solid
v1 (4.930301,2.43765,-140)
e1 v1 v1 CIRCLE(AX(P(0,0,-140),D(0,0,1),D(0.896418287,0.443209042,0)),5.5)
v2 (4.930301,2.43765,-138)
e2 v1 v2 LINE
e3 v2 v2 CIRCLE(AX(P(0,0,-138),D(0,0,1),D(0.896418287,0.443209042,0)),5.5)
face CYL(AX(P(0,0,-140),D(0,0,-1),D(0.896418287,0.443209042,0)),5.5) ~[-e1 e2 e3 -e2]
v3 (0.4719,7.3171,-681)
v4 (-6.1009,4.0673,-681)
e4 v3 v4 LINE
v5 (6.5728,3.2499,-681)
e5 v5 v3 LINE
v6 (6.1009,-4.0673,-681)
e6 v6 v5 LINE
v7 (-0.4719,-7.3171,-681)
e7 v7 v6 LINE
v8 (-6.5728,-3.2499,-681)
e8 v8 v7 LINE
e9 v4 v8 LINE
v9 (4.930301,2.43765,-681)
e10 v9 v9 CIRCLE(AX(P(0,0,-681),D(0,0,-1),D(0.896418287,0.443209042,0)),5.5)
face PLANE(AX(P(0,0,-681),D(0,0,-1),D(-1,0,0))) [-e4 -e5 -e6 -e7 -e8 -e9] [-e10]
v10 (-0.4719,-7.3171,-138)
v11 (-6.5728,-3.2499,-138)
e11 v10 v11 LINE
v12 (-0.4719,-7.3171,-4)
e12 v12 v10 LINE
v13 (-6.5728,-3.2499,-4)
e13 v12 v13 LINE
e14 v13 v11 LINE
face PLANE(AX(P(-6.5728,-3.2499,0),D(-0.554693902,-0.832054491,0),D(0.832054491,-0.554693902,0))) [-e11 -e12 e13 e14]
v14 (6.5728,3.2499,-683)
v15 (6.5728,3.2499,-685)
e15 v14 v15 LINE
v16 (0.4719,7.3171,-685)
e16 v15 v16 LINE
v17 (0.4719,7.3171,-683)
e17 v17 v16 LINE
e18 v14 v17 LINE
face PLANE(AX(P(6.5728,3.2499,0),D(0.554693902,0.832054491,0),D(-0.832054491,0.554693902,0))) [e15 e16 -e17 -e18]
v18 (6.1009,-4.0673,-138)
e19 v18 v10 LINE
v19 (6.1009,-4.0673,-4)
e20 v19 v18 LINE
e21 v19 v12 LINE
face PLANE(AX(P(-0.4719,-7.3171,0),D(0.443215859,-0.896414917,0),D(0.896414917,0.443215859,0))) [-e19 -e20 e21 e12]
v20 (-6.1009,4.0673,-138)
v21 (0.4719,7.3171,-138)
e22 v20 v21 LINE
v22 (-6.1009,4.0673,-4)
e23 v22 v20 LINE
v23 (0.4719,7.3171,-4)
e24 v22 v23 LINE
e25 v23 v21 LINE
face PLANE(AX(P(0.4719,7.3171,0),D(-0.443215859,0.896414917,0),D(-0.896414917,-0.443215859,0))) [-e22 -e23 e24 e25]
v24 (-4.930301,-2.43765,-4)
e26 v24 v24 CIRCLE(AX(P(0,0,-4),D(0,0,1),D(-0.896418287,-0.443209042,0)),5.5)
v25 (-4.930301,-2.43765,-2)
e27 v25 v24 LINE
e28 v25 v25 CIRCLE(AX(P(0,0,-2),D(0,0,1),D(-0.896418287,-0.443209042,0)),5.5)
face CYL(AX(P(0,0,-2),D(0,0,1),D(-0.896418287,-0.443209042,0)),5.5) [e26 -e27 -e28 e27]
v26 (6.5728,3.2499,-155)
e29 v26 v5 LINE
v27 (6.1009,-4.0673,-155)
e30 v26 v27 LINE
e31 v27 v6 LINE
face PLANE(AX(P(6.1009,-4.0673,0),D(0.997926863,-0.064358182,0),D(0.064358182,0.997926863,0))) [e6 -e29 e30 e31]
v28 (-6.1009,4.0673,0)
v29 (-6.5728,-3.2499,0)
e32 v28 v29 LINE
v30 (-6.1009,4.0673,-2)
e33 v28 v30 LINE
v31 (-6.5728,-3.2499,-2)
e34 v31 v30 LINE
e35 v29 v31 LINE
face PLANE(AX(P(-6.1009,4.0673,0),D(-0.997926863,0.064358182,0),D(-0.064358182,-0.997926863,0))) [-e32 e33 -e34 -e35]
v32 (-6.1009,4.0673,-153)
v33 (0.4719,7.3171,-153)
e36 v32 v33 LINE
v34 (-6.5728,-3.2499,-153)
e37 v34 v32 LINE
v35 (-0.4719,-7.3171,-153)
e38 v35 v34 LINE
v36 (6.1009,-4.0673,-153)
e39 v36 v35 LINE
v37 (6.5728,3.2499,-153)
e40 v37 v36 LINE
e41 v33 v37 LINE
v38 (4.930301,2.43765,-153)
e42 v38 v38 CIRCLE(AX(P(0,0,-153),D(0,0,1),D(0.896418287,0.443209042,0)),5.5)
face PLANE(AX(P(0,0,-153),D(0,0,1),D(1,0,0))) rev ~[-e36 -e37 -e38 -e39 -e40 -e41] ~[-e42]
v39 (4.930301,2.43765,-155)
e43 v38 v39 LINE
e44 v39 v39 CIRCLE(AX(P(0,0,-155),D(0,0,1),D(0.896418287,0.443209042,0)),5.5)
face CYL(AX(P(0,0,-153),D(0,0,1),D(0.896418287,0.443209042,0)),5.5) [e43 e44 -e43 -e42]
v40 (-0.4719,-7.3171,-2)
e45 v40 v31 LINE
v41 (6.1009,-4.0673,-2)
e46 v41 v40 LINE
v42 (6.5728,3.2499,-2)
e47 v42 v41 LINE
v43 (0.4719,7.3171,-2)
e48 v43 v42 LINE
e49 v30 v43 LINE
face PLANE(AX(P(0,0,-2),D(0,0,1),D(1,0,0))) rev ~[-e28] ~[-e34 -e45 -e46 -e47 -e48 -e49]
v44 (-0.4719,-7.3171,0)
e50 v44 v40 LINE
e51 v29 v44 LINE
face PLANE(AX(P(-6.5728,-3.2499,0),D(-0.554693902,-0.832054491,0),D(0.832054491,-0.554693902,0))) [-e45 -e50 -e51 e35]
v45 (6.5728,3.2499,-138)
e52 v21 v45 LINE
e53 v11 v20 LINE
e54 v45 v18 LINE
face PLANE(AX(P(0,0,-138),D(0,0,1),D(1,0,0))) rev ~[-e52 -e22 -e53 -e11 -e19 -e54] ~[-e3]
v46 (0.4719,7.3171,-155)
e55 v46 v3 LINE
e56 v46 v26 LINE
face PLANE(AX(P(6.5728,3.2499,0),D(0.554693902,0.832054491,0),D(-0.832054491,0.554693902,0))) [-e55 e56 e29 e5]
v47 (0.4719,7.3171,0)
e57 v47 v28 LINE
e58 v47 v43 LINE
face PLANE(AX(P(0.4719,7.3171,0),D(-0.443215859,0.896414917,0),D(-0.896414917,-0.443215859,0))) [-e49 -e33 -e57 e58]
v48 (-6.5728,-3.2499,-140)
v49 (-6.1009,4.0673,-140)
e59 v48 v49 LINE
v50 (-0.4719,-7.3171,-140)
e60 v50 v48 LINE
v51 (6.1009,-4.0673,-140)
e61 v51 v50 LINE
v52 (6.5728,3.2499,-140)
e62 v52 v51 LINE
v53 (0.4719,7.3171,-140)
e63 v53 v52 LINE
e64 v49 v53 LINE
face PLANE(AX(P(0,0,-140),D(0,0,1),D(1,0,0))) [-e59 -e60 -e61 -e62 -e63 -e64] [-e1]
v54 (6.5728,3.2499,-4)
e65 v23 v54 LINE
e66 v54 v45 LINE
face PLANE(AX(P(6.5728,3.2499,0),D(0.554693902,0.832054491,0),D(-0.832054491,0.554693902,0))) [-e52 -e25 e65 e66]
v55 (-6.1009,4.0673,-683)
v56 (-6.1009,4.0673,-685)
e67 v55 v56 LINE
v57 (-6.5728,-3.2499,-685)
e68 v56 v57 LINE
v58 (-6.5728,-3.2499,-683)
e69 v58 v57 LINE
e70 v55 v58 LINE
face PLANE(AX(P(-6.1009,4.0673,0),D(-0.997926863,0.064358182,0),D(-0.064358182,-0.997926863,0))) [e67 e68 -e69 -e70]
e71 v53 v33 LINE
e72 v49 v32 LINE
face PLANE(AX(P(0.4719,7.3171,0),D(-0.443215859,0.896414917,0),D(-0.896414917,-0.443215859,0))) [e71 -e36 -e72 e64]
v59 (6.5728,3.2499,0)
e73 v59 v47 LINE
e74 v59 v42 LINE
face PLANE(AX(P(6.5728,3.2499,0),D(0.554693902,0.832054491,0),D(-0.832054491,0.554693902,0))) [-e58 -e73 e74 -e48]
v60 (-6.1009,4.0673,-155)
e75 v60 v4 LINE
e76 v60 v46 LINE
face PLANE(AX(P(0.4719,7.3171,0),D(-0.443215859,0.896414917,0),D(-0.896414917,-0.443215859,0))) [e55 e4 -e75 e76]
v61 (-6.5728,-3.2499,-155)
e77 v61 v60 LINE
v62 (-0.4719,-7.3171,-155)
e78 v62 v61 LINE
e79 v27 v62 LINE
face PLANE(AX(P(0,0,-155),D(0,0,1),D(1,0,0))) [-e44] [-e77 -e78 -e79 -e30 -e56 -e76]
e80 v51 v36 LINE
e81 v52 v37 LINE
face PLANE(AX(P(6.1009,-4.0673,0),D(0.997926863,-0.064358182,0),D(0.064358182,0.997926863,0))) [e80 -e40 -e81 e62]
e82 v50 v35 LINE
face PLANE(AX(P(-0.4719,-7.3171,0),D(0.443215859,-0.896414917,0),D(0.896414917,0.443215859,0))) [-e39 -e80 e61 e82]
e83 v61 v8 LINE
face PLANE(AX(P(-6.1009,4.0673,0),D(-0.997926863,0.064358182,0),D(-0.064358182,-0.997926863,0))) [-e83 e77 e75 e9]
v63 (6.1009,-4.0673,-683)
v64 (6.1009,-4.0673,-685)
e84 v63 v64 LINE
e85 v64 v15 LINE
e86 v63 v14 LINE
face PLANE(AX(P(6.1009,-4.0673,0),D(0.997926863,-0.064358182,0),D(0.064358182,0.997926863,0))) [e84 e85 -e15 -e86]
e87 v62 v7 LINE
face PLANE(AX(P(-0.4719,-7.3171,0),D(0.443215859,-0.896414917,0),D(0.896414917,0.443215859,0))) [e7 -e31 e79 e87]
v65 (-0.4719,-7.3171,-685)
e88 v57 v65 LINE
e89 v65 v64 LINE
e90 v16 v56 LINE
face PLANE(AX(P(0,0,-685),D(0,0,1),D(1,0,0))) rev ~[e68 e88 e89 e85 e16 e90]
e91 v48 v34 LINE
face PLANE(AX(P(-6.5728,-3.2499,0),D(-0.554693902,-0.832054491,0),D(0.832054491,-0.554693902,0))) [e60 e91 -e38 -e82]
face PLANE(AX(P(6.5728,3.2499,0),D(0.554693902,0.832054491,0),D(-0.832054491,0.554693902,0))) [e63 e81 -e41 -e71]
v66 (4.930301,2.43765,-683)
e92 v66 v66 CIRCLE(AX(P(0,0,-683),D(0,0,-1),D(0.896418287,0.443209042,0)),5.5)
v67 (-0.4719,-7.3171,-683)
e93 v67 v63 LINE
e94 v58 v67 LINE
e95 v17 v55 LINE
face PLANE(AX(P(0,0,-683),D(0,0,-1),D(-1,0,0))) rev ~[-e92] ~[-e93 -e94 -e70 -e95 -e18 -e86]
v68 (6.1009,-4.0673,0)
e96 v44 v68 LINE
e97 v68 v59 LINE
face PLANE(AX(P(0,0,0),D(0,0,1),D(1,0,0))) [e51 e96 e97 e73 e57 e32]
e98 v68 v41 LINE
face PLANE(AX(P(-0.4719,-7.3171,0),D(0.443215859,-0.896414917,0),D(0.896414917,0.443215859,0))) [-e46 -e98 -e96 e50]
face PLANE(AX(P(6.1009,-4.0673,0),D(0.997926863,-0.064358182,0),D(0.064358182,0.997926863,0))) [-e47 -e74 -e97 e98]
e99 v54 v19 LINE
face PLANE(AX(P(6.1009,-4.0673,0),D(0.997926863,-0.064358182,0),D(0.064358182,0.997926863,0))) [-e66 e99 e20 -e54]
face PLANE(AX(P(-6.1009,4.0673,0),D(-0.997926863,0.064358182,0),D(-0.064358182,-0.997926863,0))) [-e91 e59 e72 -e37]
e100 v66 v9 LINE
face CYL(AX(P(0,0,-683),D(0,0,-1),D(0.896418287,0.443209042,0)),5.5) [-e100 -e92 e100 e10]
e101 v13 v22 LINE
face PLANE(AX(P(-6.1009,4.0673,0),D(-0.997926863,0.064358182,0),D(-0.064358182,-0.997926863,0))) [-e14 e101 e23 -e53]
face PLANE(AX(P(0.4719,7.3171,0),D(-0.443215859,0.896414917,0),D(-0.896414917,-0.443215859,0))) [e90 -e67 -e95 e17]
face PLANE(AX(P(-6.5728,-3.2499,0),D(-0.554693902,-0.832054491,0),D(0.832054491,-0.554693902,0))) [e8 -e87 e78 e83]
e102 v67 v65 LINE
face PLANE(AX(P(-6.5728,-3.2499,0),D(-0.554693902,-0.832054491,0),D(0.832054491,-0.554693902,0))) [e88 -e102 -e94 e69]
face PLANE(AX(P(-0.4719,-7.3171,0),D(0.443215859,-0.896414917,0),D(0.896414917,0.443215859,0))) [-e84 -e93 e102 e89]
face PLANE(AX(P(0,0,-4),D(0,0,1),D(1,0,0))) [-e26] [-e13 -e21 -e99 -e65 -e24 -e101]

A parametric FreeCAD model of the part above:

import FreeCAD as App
import Part
import Sketcher
Q = App.Units.Quantity

doc = App.newDocument("Part")
body = doc.addObject("PartDesign::Body", "Body")

sketch1 = body.newObject("Sketcher::SketchObject", "Sketch")
sketch1.AttachmentSupport = (doc.getObject("XY_Plane"), [""])
sketch1.MapMode = "FlatFace"
sketch1.addGeometry(Part.LineSegment(App.Vector(0, 7, 0), App.Vector(-6, 4, 0)), False)
sketch1.addGeometry(Part.LineSegment(App.Vector(-6, 4, 0), App.Vector(-7, -3, 0)), False)
sketch1.addGeometry(Part.LineSegment(App.Vector(-7, -3, 0), App.Vector(0, -7, 0)), False)
sketch1.addGeometry(Part.LineSegment(App.Vector(0, -7, 0), App.Vector(6, -4, 0)), False)
sketch1.addGeometry(Part.LineSegment(App.Vector(6, -4, 0), App.Vector(7, 3, 0)), False)
sketch1.addGeometry(Part.LineSegment(App.Vector(7, 3, 0), App.Vector(0, 7, 0)), False)
sketch1.addConstraint(Sketcher.Constraint("Coincident", 0, 2, 1, 1))
sketch1.addConstraint(Sketcher.Constraint("Coincident", 1, 2, 2, 1))
sketch1.addConstraint(Sketcher.Constraint("Coincident", 2, 2, 3, 1))
sketch1.addConstraint(Sketcher.Constraint("Coincident", 3, 2, 4, 1))
sketch1.addConstraint(Sketcher.Constraint("Coincident", 4, 2, 5, 1))
sketch1.addConstraint(Sketcher.Constraint("Coincident", 5, 2, 0, 1))
sketch1.addConstraint(Sketcher.Constraint("Symmetric", 0, 2, 3, 2, -1, 1))
sketch1.addConstraint(Sketcher.Constraint("Symmetric", 1, 2, 4, 2, -1, 1))
sketch1.addConstraint(Sketcher.Constraint("Symmetric", 2, 2, 5, 2, -1, 1))
sketch1.addConstraint(Sketcher.Constraint("Equal", 0, 1))
sketch1.addConstraint(Sketcher.Constraint("Equal", 1, 2))
sketch1.addConstraint(Sketcher.Constraint("Angle", 0, Q("-153.6908 deg")))
sketch1.addConstraint(Sketcher.Constraint("Angle", 1, Q("-93.69 deg")))
sketch1.addConstraint(Sketcher.Constraint("Angle", 2, Q("-33.6896 deg")))
sketch1.addConstraint(Sketcher.Constraint("DistanceY", 1, 2, -1, 1, 3.25))
pad1 = body.newObject("PartDesign::Pad", "Pad")
pad1.Profile = sketch1
pad1.Length = 685
pad1.Reversed = True

sketch2 = body.newObject("Sketcher::SketchObject", "Sketch001")
sketch2.AttachmentSupport = (doc.getObject("XY_Plane"), [""])
sketch2.MapMode = "FlatFace"
sketch2.AttachmentOffset = App.Placement(App.Vector(0, 0, -2), App.Rotation())
sketch2.addGeometry(Part.Circle(App.Vector(0, 0, 0), App.Vector(0, 0, 1), 13), False)
sketch2.addGeometry(Part.Circle(App.Vector(0, 0, 0), App.Vector(0, 0, 1), 6), False)
sketch2.addConstraint(Sketcher.Constraint("Coincident", 0, 3, -1, 1))
sketch2.addConstraint(Sketcher.Constraint("Coincident", 1, 3, -1, 1))
sketch2.addConstraint(Sketcher.Constraint("Diameter", 1, 11.0))
sketch2.addConstraint(Sketcher.Constraint("Diameter", 0, 26.2848))
pocket1 = body.newObject("PartDesign::Pocket", "Pocket")
pocket1.Profile = sketch2
pocket1.Length = 2

sketch3 = body.newObject("Sketcher::SketchObject", "Sketch002")
sketch3.AttachmentSupport = (doc.getObject("XY_Plane"), [""])
sketch3.MapMode = "FlatFace"
sketch3.AttachmentOffset = App.Placement(App.Vector(0, 0, -683), App.Rotation())
sketch3.addGeometry(Part.Circle(App.Vector(0, 0, 0), App.Vector(0, 0, 1), 13), False)
sketch3.addGeometry(Part.Circle(App.Vector(0, 0, 0), App.Vector(0, 0, 1), 6), False)
sketch3.addConstraint(Sketcher.Constraint("Coincident", 0, 3, -1, 1))
sketch3.addConstraint(Sketcher.Constraint("Coincident", 1, 3, -1, 1))
sketch3.addConstraint(Sketcher.Constraint("Diameter", 1, 11.0))
sketch3.addConstraint(Sketcher.Constraint("Diameter", 0, 26.2848))
pocket2 = body.newObject("PartDesign::Pocket", "Pocket001")
pocket2.Profile = sketch3
pocket2.Length = 2
pocket2.Reversed = True

sketch4 = body.newObject("Sketcher::SketchObject", "Sketch003")
sketch4.AttachmentSupport = (doc.getObject("XY_Plane"), [""])
sketch4.MapMode = "FlatFace"
sketch4.AttachmentOffset = App.Placement(App.Vector(0, 0, -140), App.Rotation())
sketch4.addGeometry(Part.Circle(App.Vector(0, 0, 0), App.Vector(0, 0, 1), 13), False)
sketch4.addGeometry(Part.Circle(App.Vector(0, 0, 0), App.Vector(0, 0, 1), 6), False)
sketch4.addConstraint(Sketcher.Constraint("Coincident", 0, 3, -1, 1))
sketch4.addConstraint(Sketcher.Constraint("Coincident", 1, 3, -1, 1))
sketch4.addConstraint(Sketcher.Constraint("Diameter", 1, 11.0))
sketch4.addConstraint(Sketcher.Constraint("Diameter", 0, 26.2848))
pocket3 = body.newObject("PartDesign::Pocket", "Pocket002")
pocket3.Profile = sketch4
pocket3.Length = 2
pocket3.Reversed = True

sketch5 = body.newObject("Sketcher::SketchObject", "Sketch004")
sketch5.AttachmentSupport = (doc.getObject("XY_Plane"), [""])
sketch5.MapMode = "FlatFace"
sketch5.AttachmentOffset = App.Placement(App.Vector(0, 0, -153), App.Rotation())
sketch5.addGeometry(Part.Circle(App.Vector(0, 0, 0), App.Vector(0, 0, 1), 10), False)
sketch5.addGeometry(Part.Circle(App.Vector(0, 0, 0), App.Vector(0, 0, 1), 6), False)
sketch5.addConstraint(Sketcher.Constraint("Coincident", 0, 3, -1, 1))
sketch5.addConstraint(Sketcher.Constraint("Coincident", 1, 3, -1, 1))
sketch5.addConstraint(Sketcher.Constraint("Diameter", 1, 11.0))
sketch5.addConstraint(Sketcher.Constraint("Diameter", 0, 20.8744))
pocket4 = body.newObject("PartDesign::Pocket", "Pocket003")
pocket4.Profile = sketch5
pocket4.Length = 2

doc.recompute()
